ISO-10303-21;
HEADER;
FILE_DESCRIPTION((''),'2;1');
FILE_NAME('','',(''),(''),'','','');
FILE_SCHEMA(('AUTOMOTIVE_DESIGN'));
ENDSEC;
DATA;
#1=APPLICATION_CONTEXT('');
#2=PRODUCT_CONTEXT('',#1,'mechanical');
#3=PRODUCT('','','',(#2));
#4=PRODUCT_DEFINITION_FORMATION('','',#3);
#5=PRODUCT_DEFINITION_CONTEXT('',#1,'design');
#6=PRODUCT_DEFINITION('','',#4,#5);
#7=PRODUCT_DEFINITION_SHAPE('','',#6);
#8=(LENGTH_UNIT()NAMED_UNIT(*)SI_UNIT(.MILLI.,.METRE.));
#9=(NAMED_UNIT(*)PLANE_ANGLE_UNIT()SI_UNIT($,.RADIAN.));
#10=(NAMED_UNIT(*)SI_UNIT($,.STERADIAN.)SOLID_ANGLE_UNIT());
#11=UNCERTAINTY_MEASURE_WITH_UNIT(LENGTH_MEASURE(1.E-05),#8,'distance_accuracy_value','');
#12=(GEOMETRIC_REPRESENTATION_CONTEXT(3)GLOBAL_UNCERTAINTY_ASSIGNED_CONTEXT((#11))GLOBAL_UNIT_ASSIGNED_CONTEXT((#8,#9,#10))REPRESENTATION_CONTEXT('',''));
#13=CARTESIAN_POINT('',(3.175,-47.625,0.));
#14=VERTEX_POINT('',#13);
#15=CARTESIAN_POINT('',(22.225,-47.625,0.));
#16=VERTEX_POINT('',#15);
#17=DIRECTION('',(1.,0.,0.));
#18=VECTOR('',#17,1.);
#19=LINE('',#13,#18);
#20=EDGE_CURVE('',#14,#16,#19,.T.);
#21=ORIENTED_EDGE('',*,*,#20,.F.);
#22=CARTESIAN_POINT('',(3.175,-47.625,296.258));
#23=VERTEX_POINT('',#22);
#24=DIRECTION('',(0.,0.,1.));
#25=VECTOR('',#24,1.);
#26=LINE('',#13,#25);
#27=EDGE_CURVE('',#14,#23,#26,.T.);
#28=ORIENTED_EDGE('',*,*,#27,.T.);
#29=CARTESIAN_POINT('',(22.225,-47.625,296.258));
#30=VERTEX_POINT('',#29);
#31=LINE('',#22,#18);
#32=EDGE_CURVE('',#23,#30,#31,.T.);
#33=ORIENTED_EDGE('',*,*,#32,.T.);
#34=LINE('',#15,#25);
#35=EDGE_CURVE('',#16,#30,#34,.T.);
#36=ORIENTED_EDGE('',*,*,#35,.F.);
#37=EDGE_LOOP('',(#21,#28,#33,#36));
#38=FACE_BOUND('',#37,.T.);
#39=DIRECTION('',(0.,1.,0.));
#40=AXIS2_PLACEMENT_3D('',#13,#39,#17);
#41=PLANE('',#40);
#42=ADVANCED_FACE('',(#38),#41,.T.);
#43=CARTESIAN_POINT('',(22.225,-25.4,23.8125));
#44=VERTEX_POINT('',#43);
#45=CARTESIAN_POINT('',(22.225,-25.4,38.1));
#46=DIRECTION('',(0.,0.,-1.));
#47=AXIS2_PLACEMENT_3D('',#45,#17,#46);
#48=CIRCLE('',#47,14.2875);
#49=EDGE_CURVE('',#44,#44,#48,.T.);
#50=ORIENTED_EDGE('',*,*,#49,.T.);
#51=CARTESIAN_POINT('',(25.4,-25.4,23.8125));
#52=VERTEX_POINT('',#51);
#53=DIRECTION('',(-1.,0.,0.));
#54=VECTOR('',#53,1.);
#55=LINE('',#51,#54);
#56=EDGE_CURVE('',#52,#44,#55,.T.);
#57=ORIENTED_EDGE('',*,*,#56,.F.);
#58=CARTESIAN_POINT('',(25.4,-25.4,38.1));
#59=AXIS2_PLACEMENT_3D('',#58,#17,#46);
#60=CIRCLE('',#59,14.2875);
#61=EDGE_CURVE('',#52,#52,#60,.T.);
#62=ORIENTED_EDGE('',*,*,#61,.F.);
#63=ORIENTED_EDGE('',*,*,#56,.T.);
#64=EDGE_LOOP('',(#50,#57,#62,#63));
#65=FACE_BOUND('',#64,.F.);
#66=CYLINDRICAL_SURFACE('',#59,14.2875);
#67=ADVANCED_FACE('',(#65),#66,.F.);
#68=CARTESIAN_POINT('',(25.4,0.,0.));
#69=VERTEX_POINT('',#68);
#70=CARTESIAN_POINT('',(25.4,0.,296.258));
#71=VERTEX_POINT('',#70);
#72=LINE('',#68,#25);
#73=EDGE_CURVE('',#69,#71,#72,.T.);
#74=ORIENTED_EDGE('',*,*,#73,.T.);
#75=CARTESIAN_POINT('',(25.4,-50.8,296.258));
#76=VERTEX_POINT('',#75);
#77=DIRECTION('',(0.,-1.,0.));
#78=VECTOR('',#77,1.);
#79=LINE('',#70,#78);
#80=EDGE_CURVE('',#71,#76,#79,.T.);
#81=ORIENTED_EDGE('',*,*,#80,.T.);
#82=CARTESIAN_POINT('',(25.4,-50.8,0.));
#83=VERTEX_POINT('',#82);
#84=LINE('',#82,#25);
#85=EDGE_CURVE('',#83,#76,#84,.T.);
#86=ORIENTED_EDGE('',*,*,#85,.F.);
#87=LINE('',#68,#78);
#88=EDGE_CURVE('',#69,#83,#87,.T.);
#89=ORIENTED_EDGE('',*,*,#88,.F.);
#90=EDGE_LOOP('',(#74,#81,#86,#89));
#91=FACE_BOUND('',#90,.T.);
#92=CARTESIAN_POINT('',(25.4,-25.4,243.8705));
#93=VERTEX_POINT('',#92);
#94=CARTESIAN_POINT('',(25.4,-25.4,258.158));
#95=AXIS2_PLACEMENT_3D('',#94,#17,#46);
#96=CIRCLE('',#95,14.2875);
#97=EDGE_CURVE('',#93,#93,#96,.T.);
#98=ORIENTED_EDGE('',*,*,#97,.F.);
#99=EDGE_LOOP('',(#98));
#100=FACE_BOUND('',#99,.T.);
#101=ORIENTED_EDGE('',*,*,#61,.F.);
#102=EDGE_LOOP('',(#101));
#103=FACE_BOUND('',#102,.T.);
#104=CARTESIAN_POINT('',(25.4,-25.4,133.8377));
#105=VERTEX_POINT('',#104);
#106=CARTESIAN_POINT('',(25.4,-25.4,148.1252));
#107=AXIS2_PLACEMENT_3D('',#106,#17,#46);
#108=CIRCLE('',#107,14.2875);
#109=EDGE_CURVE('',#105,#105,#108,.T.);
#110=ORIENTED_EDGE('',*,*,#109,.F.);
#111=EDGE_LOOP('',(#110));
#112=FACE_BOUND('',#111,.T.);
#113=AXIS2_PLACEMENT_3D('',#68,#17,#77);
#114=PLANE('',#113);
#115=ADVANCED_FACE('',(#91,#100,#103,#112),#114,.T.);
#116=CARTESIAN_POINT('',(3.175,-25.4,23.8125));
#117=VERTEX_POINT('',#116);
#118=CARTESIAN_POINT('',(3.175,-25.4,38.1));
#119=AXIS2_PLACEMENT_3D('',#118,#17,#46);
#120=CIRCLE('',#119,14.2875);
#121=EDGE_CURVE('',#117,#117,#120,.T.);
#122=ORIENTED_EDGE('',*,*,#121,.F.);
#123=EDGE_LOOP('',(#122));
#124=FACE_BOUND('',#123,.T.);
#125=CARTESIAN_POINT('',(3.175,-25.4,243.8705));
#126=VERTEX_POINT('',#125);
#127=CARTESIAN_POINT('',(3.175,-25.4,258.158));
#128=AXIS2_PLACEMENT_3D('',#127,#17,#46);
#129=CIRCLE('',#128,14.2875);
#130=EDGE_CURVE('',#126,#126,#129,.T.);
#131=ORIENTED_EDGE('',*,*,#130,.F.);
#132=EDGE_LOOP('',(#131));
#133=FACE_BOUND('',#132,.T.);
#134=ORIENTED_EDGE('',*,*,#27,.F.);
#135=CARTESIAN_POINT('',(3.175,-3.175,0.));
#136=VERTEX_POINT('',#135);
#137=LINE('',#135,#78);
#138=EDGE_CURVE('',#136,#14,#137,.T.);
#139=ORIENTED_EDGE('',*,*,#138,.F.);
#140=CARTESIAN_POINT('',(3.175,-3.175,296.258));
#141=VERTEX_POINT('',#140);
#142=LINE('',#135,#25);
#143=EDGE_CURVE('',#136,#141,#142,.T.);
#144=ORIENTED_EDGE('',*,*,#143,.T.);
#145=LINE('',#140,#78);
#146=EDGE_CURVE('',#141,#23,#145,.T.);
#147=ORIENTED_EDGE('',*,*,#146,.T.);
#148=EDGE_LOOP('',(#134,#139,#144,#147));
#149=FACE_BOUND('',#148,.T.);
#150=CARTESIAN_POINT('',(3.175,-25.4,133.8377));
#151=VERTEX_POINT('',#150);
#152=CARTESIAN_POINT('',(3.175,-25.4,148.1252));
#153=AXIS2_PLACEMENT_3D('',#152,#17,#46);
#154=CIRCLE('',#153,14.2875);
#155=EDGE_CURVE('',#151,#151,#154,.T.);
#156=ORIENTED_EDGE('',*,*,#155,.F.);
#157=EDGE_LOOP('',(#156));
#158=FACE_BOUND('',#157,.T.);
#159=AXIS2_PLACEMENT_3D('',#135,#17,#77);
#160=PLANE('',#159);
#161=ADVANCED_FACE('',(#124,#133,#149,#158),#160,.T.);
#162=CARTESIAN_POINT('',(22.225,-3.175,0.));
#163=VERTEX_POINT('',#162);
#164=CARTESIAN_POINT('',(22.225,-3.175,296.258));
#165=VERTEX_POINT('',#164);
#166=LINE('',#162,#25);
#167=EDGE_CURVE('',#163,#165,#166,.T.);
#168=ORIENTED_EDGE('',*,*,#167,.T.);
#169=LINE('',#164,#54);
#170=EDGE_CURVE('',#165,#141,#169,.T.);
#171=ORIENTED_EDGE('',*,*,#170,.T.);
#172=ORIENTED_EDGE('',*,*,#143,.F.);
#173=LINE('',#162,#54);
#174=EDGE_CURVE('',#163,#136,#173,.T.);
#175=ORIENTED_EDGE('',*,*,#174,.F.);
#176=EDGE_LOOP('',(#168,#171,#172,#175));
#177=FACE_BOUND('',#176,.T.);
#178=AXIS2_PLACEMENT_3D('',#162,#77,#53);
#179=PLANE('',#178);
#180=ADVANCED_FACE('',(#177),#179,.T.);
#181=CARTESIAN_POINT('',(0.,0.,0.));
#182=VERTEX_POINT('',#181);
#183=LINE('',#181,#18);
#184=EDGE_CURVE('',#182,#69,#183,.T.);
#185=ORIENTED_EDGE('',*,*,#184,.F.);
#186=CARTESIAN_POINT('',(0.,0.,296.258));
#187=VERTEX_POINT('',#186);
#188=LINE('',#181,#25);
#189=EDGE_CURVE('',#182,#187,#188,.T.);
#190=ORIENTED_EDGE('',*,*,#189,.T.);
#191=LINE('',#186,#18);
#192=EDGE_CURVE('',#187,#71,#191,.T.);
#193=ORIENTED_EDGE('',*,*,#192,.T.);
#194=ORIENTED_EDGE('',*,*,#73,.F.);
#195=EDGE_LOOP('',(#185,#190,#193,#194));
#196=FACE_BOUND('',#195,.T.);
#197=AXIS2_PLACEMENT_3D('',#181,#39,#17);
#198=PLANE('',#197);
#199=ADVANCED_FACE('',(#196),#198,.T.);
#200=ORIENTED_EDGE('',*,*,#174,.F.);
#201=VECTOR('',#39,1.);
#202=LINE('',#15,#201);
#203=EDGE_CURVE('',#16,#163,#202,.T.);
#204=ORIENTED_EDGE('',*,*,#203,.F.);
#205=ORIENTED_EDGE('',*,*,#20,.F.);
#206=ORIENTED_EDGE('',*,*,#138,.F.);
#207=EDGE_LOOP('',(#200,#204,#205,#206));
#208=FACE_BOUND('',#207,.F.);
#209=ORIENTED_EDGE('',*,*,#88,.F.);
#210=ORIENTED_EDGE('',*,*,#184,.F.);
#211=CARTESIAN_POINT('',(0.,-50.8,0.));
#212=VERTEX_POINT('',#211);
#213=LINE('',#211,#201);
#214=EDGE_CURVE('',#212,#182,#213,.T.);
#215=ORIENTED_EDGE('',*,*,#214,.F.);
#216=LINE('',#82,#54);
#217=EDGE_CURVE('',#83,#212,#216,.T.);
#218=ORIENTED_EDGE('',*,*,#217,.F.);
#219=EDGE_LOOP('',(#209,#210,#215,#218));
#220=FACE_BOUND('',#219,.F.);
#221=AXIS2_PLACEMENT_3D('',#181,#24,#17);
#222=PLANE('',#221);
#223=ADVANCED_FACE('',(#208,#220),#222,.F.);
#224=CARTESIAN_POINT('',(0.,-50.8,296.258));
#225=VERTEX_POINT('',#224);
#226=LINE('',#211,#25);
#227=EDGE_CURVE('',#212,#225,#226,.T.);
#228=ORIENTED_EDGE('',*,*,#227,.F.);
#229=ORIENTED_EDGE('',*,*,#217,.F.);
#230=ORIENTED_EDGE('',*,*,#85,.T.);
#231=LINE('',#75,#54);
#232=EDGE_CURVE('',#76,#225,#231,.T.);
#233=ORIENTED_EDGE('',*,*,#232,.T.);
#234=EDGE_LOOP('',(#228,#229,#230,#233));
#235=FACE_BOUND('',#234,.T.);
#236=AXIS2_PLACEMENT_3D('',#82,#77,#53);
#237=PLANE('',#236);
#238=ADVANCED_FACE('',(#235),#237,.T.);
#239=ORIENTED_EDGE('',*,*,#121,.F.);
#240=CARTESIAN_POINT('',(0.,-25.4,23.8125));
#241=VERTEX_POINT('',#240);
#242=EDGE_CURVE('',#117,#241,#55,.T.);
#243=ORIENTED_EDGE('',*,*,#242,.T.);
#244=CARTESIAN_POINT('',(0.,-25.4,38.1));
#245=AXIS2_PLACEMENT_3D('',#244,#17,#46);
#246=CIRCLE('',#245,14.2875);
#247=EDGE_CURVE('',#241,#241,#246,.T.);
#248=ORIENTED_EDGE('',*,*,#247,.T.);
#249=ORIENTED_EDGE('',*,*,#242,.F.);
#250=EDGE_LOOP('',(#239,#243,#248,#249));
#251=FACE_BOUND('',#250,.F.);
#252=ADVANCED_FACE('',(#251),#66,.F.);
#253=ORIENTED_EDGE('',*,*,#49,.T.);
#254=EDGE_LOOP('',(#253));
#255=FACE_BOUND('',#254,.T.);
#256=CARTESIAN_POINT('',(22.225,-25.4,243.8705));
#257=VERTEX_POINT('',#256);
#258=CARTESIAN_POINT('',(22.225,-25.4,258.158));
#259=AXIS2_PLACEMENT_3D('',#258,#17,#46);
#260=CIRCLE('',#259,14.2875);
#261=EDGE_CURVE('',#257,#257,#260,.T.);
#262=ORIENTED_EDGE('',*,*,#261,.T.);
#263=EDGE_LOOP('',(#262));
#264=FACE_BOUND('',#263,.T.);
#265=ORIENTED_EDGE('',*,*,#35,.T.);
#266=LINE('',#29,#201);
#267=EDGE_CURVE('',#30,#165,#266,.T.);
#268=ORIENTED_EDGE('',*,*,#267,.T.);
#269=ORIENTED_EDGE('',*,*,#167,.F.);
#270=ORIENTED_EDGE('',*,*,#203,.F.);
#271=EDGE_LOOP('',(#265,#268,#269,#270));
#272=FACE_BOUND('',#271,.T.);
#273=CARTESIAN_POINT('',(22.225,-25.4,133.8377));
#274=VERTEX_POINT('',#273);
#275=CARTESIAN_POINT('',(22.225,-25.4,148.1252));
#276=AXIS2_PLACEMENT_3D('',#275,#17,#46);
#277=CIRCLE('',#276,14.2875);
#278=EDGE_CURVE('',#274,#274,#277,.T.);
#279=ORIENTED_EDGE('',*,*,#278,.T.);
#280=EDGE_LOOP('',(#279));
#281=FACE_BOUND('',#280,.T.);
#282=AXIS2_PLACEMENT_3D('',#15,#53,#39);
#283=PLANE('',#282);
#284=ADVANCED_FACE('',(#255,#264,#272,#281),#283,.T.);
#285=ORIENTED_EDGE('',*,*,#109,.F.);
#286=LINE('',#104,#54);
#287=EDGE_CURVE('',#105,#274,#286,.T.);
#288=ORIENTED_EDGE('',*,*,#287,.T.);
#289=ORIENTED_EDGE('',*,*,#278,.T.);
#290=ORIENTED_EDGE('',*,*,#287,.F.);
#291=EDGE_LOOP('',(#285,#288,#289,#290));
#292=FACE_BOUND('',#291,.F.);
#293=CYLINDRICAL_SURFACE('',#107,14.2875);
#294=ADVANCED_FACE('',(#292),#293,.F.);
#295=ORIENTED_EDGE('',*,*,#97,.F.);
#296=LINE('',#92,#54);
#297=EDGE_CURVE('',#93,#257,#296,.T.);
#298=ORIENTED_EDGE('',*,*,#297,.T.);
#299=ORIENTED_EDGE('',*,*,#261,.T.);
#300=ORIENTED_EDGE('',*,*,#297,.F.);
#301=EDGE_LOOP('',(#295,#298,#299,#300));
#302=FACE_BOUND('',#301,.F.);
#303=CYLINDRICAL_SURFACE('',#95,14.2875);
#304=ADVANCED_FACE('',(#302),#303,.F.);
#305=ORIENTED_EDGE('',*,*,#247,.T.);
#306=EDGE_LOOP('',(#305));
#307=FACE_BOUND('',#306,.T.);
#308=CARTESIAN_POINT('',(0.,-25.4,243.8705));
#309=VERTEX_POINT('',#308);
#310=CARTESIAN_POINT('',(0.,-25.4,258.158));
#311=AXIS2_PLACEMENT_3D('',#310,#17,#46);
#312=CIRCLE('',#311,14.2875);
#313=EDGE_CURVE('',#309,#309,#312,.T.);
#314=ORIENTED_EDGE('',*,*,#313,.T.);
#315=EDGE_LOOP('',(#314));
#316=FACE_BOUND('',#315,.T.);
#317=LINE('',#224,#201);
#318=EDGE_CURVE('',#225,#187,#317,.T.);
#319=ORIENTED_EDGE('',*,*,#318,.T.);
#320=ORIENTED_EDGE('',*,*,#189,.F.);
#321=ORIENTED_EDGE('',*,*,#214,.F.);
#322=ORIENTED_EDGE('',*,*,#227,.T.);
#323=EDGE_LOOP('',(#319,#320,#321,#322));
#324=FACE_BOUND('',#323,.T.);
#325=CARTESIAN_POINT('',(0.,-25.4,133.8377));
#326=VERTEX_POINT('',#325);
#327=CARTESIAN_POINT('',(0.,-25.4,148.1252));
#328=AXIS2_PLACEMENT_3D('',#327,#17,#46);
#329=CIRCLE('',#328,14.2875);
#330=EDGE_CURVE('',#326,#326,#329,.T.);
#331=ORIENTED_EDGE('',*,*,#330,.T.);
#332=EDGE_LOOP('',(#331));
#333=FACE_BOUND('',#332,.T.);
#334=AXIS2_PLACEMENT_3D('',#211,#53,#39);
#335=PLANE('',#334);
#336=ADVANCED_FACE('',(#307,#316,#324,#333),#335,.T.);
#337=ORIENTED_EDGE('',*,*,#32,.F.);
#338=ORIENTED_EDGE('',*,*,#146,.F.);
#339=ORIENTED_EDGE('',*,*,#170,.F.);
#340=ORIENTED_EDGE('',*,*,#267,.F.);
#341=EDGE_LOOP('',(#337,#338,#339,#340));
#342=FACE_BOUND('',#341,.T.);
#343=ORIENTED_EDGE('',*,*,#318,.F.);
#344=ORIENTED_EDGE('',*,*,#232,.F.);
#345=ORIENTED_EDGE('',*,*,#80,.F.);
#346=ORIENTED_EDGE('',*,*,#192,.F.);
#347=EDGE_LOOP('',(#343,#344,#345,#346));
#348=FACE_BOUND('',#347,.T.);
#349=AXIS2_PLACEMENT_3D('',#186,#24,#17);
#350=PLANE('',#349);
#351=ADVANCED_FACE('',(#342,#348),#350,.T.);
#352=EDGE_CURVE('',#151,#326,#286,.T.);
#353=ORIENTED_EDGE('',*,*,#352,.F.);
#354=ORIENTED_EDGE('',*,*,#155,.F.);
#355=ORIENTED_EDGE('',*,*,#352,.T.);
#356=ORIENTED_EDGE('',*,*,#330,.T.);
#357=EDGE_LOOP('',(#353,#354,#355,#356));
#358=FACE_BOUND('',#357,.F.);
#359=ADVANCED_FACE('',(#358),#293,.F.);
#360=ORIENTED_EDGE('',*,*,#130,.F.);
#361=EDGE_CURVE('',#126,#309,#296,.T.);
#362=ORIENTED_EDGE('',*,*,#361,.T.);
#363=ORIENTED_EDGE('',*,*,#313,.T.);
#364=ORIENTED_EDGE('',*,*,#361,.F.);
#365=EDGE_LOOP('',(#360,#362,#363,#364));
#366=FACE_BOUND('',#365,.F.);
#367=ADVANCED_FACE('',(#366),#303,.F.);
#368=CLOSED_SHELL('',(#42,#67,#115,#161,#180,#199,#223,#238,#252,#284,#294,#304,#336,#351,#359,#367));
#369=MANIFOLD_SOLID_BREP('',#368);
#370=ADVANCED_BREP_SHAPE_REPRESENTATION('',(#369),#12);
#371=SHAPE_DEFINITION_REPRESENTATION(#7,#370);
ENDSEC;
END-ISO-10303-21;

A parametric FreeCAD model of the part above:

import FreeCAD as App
import Part
import Sketcher

V = App.Vector
Q = App.Units.Quantity

doc = App.newDocument("Part")
body = doc.addObject("PartDesign::Body", "Body")

sketch1 = body.newObject("Sketcher::SketchObject", "Sketch")
sketch1.AttachmentSupport = (doc.getObject("XY_Plane"), [""])
sketch1.MapMode = "FlatFace"
sketch1.addGeometry(Part.LineSegment(V(25, 0, 0), V(0, 0, 0)), False)
sketch1.addGeometry(Part.LineSegment(V(0, 0, 0), V(0, -51, 0)), False)
sketch1.addGeometry(Part.LineSegment(V(0, -51, 0), V(25, -51, 0)), False)
sketch1.addGeometry(Part.LineSegment(V(25, -51, 0), V(25, 0, 0)), False)
sketch1.addGeometry(Part.LineSegment(V(3, -3, 0), V(22, -3, 0)), False)
sketch1.addGeometry(Part.LineSegment(V(22, -3, 0), V(22, -48, 0)), False)
sketch1.addGeometry(Part.LineSegment(V(22, -48, 0), V(3, -48, 0)), False)
sketch1.addGeometry(Part.LineSegment(V(3, -48, 0), V(3, -3, 0)), False)
sketch1.addConstraint(Sketcher.Constraint("Coincident", 0, 2, 1, 1))
sketch1.addConstraint(Sketcher.Constraint("Coincident", 1, 2, 2, 1))
sketch1.addConstraint(Sketcher.Constraint("Coincident", 2, 2, 3, 1))
sketch1.addConstraint(Sketcher.Constraint("Coincident", 3, 2, 0, 1))
sketch1.addConstraint(Sketcher.Constraint("Coincident", 4, 2, 5, 1))
sketch1.addConstraint(Sketcher.Constraint("Coincident", 5, 2, 6, 1))
sketch1.addConstraint(Sketcher.Constraint("Coincident", 6, 2, 7, 1))
sketch1.addConstraint(Sketcher.Constraint("Coincident", 7, 2, 4, 1))
sketch1.addConstraint(Sketcher.Constraint("Horizontal", 0))
sketch1.addConstraint(Sketcher.Constraint("Vertical", 1))
sketch1.addConstraint(Sketcher.Constraint("Horizontal", 2))
sketch1.addConstraint(Sketcher.Constraint("Vertical", 3))
sketch1.addConstraint(Sketcher.Constraint("Horizontal", 4))
sketch1.addConstraint(Sketcher.Constraint("Vertical", 5))
sketch1.addConstraint(Sketcher.Constraint("Horizontal", 6))
sketch1.addConstraint(Sketcher.Constraint("Vertical", 7))
sketch1.addConstraint(Sketcher.Constraint("Coincident", 0, 2, -1, 1))
sketch1.addConstraint(Sketcher.Constraint("DistanceX", 0, 2, 0, 1, Q("1 in")))
sketch1.addConstraint(Sketcher.Constraint("DistanceY", 1, 2, 1, 1, Q("2 in")))
sketch1.addConstraint(Sketcher.Constraint("DistanceY", 4, 2, -1, 1, Q("0.125 in")))
sketch1.addConstraint(Sketcher.Constraint("DistanceX", -1, 1, 6, 2, Q("0.125 in")))
sketch1.addConstraint(Sketcher.Constraint("DistanceX", 4, 2, 3, 2, Q("0.125 in")))
sketch1.addConstraint(Sketcher.Constraint("DistanceY", 2, 2, 5, 2, Q("0.125 in")))
pad1 = body.newObject("PartDesign::Pad", "Pad")
pad1.Profile = sketch1
pad1.Length = Q("11.6637008 in")

sketch2 = body.newObject("Sketcher::SketchObject", "Sketch001")
sketch2.AttachmentSupport = (doc.getObject("YZ_Plane"), [""])
sketch2.MapMode = "FlatFace"
sketch2.AttachmentOffset = App.Placement(V(0, 0, 1 * 25.4), App.Rotation())
sketch2.addGeometry(Part.Circle(V(-25, 38, 0), V(0, 0, 1), 14), False)
sketch2.addGeometry(Part.Circle(V(-25, 148, 0), V(0, 0, 1), 14), False)
sketch2.addConstraint(Sketcher.Constraint("Equal", 0, 1))
sketch2.addConstraint(Sketcher.Constraint("Vertical", 0, 3, 1, 3))
sketch2.addConstraint(Sketcher.Constraint("Diameter", 0, Q("1.125 in")))
sketch2.addConstraint(Sketcher.Constraint("DistanceX", 0, 3, -1, 1, Q("1 in")))
sketch2.addConstraint(Sketcher.Constraint("DistanceY", -1, 1, 0, 3, Q("1.5 in")))
sketch2.addConstraint(Sketcher.Constraint("DistanceY", 0, 3, 1, 3, Q("4.3317 in")))
pocket1 = body.newObject("PartDesign::Pocket", "Pocket")
pocket1.Profile = sketch2
pocket1.Length = Q("7.5 in")

sketch3 = body.newObject("Sketcher::SketchObject", "Sketch002")
sketch3.AttachmentSupport = (doc.getObject("YZ_Plane"), [""])
sketch3.MapMode = "FlatFace"
sketch3.AttachmentOffset = App.Placement(V(0, 0, 1 * 25.4), App.Rotation())
sketch3.addGeometry(Part.Circle(V(-25, 258, 0), V(0, 0, 1), 14), False)
sketch3.addConstraint(Sketcher.Constraint("Diameter", 0, Q("1.125 in")))
sketch3.addConstraint(Sketcher.Constraint("DistanceX", 0, 3, -1, 1, Q("1 in")))
sketch3.addConstraint(Sketcher.Constraint("DistanceY", -1, 1, 0, 3, Q("10.1637 in")))
pocket2 = body.newObject("PartDesign::Pocket", "Pocket001")
pocket2.Profile = sketch3
pocket2.Length = Q("1 in")

doc.recompute()
